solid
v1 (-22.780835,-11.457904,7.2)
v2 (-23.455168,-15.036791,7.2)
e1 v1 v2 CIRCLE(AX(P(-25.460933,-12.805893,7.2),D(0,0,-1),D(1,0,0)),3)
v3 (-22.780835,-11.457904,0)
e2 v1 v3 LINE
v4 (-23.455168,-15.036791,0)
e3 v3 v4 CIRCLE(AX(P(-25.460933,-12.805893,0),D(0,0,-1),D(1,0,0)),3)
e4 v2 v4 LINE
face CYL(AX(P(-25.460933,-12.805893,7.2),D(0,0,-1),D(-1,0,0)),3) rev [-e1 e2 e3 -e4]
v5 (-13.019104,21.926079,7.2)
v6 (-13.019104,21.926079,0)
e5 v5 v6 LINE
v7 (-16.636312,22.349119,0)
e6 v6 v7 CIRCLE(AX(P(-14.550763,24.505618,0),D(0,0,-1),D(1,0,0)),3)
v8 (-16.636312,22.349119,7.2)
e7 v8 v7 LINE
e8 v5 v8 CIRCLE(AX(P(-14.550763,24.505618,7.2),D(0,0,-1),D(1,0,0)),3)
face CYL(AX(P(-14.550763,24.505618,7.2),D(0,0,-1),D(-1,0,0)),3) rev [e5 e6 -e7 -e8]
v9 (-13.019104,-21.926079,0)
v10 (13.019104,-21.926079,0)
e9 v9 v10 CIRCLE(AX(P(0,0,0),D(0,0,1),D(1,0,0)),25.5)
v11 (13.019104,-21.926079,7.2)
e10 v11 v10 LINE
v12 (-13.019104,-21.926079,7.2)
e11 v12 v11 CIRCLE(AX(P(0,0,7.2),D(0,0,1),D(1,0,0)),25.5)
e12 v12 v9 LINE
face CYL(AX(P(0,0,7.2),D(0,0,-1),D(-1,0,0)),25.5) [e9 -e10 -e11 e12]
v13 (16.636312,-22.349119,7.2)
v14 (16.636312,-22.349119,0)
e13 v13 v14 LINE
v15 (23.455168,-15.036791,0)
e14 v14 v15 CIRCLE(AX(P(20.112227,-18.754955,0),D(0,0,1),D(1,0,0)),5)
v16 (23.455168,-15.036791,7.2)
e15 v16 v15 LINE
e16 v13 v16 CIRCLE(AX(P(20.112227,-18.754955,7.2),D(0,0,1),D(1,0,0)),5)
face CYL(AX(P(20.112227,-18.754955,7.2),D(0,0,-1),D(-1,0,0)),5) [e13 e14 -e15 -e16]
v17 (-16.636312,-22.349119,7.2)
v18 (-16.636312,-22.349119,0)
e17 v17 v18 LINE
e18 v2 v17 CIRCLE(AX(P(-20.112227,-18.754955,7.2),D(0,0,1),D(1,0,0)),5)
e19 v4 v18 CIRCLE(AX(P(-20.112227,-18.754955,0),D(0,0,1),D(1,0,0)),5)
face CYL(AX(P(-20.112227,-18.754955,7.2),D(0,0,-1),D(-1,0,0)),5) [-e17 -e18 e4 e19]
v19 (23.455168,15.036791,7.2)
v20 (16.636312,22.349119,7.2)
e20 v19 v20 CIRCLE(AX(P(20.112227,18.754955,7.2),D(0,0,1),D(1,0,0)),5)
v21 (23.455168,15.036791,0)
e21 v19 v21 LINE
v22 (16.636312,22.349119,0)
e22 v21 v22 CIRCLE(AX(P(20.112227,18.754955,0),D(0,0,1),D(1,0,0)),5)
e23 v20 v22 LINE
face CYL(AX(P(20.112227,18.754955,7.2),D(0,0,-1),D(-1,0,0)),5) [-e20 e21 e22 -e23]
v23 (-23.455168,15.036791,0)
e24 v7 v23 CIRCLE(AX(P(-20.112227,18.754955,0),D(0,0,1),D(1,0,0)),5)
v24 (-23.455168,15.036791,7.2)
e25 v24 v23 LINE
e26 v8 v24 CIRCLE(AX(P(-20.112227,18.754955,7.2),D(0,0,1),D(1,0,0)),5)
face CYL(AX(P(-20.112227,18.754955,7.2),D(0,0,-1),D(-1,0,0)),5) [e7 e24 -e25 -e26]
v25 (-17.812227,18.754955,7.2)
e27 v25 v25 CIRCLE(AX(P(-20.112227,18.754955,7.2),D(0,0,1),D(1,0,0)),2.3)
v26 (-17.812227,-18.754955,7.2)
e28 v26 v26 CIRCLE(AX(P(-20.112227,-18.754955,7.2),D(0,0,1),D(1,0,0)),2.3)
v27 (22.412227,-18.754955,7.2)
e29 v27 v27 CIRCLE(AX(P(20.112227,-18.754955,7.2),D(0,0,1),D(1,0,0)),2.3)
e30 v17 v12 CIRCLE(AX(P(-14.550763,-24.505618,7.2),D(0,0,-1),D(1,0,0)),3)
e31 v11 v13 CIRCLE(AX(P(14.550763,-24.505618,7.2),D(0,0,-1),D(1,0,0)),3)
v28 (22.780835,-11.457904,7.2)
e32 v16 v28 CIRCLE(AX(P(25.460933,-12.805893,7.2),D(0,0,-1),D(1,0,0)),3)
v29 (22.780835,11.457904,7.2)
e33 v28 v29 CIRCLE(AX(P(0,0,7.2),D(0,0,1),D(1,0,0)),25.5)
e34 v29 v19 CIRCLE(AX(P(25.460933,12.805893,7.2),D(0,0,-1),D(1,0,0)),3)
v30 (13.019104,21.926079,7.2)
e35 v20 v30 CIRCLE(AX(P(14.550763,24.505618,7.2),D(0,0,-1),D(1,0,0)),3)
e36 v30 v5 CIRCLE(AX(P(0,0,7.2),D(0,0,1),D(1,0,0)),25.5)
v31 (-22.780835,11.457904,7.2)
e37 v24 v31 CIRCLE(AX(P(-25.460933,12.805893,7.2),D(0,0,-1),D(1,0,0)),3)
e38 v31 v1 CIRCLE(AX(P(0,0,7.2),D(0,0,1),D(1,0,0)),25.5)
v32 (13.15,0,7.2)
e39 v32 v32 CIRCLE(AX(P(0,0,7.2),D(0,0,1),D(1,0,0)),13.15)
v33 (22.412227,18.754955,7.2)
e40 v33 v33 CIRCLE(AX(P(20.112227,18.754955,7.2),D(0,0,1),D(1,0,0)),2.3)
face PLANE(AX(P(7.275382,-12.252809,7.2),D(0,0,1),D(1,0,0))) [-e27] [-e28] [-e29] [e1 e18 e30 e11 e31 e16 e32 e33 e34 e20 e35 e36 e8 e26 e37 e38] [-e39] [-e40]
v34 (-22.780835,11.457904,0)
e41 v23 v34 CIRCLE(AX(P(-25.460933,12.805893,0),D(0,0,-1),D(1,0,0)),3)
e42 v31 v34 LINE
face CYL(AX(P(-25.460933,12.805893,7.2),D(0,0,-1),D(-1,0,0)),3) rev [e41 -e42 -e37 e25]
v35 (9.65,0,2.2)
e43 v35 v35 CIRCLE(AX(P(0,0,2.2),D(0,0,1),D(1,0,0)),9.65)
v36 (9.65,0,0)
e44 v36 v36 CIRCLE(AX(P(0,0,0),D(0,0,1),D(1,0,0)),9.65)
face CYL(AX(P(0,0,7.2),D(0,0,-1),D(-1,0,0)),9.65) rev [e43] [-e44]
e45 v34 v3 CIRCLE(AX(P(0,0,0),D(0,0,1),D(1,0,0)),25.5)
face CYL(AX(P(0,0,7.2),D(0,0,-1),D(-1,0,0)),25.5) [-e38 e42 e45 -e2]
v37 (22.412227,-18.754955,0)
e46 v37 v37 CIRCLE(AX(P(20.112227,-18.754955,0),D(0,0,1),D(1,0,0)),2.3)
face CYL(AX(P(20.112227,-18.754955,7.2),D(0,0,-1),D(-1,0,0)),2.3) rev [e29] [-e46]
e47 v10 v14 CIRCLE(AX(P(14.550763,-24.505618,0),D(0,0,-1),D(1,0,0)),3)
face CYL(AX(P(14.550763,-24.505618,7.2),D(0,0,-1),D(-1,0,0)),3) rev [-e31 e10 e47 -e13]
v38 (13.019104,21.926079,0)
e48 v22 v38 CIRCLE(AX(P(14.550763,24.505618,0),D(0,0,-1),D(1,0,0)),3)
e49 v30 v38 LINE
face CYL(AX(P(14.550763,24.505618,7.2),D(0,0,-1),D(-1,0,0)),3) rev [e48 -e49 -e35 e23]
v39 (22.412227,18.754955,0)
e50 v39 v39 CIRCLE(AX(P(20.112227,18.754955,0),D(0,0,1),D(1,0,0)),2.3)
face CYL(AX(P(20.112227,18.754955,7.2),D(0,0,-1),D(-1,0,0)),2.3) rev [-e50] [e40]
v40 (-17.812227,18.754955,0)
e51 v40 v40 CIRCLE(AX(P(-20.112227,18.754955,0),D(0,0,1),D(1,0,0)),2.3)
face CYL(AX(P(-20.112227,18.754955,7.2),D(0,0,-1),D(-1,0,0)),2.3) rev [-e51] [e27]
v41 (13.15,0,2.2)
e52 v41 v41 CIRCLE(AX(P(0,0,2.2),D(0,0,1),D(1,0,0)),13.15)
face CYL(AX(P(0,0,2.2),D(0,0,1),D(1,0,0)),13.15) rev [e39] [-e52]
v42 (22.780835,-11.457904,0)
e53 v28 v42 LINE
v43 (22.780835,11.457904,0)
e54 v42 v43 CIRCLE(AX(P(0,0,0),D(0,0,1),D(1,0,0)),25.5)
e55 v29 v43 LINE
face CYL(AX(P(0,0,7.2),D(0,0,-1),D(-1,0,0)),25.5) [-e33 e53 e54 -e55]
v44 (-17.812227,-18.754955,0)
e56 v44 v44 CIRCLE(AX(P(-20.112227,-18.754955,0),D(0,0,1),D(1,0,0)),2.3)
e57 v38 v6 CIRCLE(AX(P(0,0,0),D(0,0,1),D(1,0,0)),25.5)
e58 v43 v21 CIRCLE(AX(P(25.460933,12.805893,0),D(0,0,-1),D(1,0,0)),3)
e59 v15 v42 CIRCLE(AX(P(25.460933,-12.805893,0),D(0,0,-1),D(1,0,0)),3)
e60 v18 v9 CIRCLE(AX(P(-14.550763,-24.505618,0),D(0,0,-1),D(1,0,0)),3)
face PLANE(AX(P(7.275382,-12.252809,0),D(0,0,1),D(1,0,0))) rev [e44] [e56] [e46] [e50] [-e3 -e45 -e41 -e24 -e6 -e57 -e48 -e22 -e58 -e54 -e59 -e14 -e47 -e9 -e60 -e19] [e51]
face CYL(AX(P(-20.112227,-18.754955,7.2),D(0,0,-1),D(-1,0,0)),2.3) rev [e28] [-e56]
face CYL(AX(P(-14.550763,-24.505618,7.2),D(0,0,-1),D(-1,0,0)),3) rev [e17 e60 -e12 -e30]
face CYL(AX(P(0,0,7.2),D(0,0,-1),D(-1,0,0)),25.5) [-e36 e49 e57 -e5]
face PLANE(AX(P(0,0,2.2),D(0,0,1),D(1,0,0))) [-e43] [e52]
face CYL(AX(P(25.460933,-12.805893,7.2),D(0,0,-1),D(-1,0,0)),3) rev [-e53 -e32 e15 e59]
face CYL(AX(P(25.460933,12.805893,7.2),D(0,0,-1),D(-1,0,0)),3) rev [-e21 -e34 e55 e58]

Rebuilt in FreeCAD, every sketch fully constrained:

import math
import FreeCAD as App
import Part
import Sketcher
from FreeCAD import Vector

doc = App.newDocument("Part")
body = doc.addObject("PartDesign::Body", "Body")

sketch1 = body.newObject("Sketcher::SketchObject", "Sketch")
sketch1.AttachmentSupport = (doc.getObject("XY_Plane"), [""])
sketch1.MapMode = "FlatFace"
sketch1.addGeometry(Part.ArcOfCircle(Part.Circle(Vector(20.112227, -18.754955, 0), Vector(0, 0, 1), 5), math.radians(-134.041799), math.radians(48.041799)), False)
sketch1.addGeometry(Part.ArcOfCircle(Part.Circle(Vector(25.460933, -12.805893, 0), Vector(0, 0, 1), 3), math.radians(153.299322), math.radians(228.041799)), False)
sketch1.addGeometry(Part.ArcOfCircle(Part.Circle(Vector(0, 0, 0), Vector(0, 0, 1), 25.5), math.radians(-26.700678), math.radians(26.700678)), False)
sketch1.addGeometry(Part.ArcOfCircle(Part.Circle(Vector(25.460933, 12.805893, 0), Vector(0, 0, 1), 3), math.radians(131.958201), math.radians(206.700678)), False)
sketch1.addGeometry(Part.ArcOfCircle(Part.Circle(Vector(20.112227, 18.754955, 0), Vector(0, 0, 1), 5), math.radians(-48.041799), math.radians(134.041799)), False)
sketch1.addGeometry(Part.ArcOfCircle(Part.Circle(Vector(14.550763, 24.505618, 0), Vector(0, 0, 1), 3), math.radians(-120.700678), math.radians(-45.958201)), False)
sketch1.addGeometry(Part.ArcOfCircle(Part.Circle(Vector(0, 0, 0), Vector(0, 0, 1), 25.5), math.radians(59.299322), math.radians(120.700678)), False)
sketch1.addGeometry(Part.ArcOfCircle(Part.Circle(Vector(-14.550763, 24.505618, 0), Vector(0, 0, 1), 3), math.radians(-134.041799), math.radians(-59.299322)), False)
sketch1.addGeometry(Part.ArcOfCircle(Part.Circle(Vector(-20.112227, 18.754955, 0), Vector(0, 0, 1), 5), math.radians(45.958201), math.radians(228.041799)), False)
sketch1.addGeometry(Part.ArcOfCircle(Part.Circle(Vector(-25.460933, 12.805893, 0), Vector(0, 0, 1), 3), math.radians(-26.700678), math.radians(48.041799)), False)
sketch1.addGeometry(Part.ArcOfCircle(Part.Circle(Vector(0, 0, 0), Vector(0, 0, 1), 25.5), math.radians(153.299322), math.radians(206.700678)), False)
sketch1.addGeometry(Part.ArcOfCircle(Part.Circle(Vector(-25.460933, -12.805893, 0), Vector(0, 0, 1), 3), math.radians(-48.041799), math.radians(26.700678)), False)
sketch1.addGeometry(Part.ArcOfCircle(Part.Circle(Vector(-20.112227, -18.754955, 0), Vector(0, 0, 1), 5), math.radians(131.958201), math.radians(314.041799)), False)
sketch1.addGeometry(Part.ArcOfCircle(Part.Circle(Vector(-14.550763, -24.505618, 0), Vector(0, 0, 1), 3), math.radians(59.299322), math.radians(134.041799)), False)
sketch1.addGeometry(Part.ArcOfCircle(Part.Circle(Vector(0, 0, 0), Vector(0, 0, 1), 25.5), math.radians(-120.700678), math.radians(-59.299322)), False)
sketch1.addGeometry(Part.ArcOfCircle(Part.Circle(Vector(14.550763, -24.505618, 0), Vector(0, 0, 1), 3), math.radians(45.958201), math.radians(120.700678)), False)
sketch1.addGeometry(Part.Circle(Vector(-20.112227, -18.754955, 0), Vector(0, 0, 1), 2.3), False)
sketch1.addGeometry(Part.Circle(Vector(20.112227, -18.754955, 0), Vector(0, 0, 1), 2.3), False)
sketch1.addGeometry(Part.Circle(Vector(-20.112227, 18.754955, 0), Vector(0, 0, 1), 2.3), False)
sketch1.addGeometry(Part.Circle(Vector(0, 0, 0), Vector(0, 0, 1), 9.65), False)
sketch1.addGeometry(Part.Circle(Vector(20.112227, 18.754955, 0), Vector(0, 0, 1), 2.3), False)
sketch1.addConstraint(Sketcher.Constraint("Tangent", 0, 2, 1, 2))
sketch1.addConstraint(Sketcher.Constraint("Tangent", 1, 1, 2, 1))
sketch1.addConstraint(Sketcher.Constraint("Tangent", 2, 2, 3, 2))
sketch1.addConstraint(Sketcher.Constraint("Tangent", 3, 1, 4, 1))
sketch1.addConstraint(Sketcher.Constraint("Tangent", 4, 2, 5, 2))
sketch1.addConstraint(Sketcher.Constraint("Tangent", 5, 1, 6, 1))
sketch1.addConstraint(Sketcher.Constraint("Tangent", 6, 2, 7, 2))
sketch1.addConstraint(Sketcher.Constraint("Tangent", 7, 1, 8, 1))
sketch1.addConstraint(Sketcher.Constraint("Tangent", 8, 2, 9, 2))
sketch1.addConstraint(Sketcher.Constraint("Tangent", 9, 1, 10, 1))
sketch1.addConstraint(Sketcher.Constraint("Tangent", 10, 2, 11, 2))
sketch1.addConstraint(Sketcher.Constraint("Tangent", 11, 1, 12, 1))
sketch1.addConstraint(Sketcher.Constraint("Tangent", 12, 2, 13, 2))
sketch1.addConstraint(Sketcher.Constraint("Tangent", 13, 1, 14, 1))
sketch1.addConstraint(Sketcher.Constraint("Tangent", 14, 2, 15, 2))
sketch1.addConstraint(Sketcher.Constraint("Tangent", 15, 1, 0, 1))
sketch1.addConstraint(Sketcher.Constraint("Coincident", 2, 3, -1, 1))
sketch1.addConstraint(Sketcher.Constraint("Coincident", 6, 3, -1, 1))
sketch1.addConstraint(Sketcher.Constraint("Coincident", 10, 3, -1, 1))
sketch1.addConstraint(Sketcher.Constraint("Coincident", 14, 3, -1, 1))
sketch1.addConstraint(Sketcher.Constraint("Coincident", 19, 3, -1, 1))
sketch1.addConstraint(Sketcher.Constraint("Coincident", 16, 3, 12, 3))
sketch1.addConstraint(Sketcher.Constraint("Coincident", 17, 3, 0, 3))
sketch1.addConstraint(Sketcher.Constraint("Coincident", 18, 3, 8, 3))
sketch1.addConstraint(Sketcher.Constraint("Coincident", 20, 3, 4, 3))
sketch1.addConstraint(Sketcher.Constraint("Equal", 1, 3))
sketch1.addConstraint(Sketcher.Constraint("Equal", 0, 4))
sketch1.addConstraint(Sketcher.Constraint("Equal", 3, 5))
sketch1.addConstraint(Sketcher.Constraint("Equal", 2, 6))
sketch1.addConstraint(Sketcher.Constraint("Equal", 5, 7))
sketch1.addConstraint(Sketcher.Constraint("Equal", 4, 8))
sketch1.addConstraint(Sketcher.Constraint("Equal", 7, 9))
sketch1.addConstraint(Sketcher.Constraint("Equal", 6, 10))
sketch1.addConstraint(Sketcher.Constraint("Equal", 9, 11))
sketch1.addConstraint(Sketcher.Constraint("Equal", 8, 12))
sketch1.addConstraint(Sketcher.Constraint("Equal", 11, 13))
sketch1.addConstraint(Sketcher.Constraint("Equal", 10, 14))
sketch1.addConstraint(Sketcher.Constraint("Equal", 13, 15))
sketch1.addConstraint(Sketcher.Constraint("Equal", 16, 17))
sketch1.addConstraint(Sketcher.Constraint("Equal", 17, 18))
sketch1.addConstraint(Sketcher.Constraint("Equal", 18, 20))
sketch1.addConstraint(Sketcher.Constraint("Symmetric", 0, 3, 8, 3, -1, 1))
sketch1.addConstraint(Sketcher.Constraint("Symmetric", 4, 3, 12, 3, -1, 1))
sketch1.addConstraint(Sketcher.Constraint("Symmetric", 4, 3, 8, 3, -2))
sketch1.addConstraint(Sketcher.Constraint("Radius", 0, 5.0))
sketch1.addConstraint(Sketcher.Constraint("Radius", 1, 3.0))
sketch1.addConstraint(Sketcher.Constraint("Diameter", 16, 4.6))
sketch1.addConstraint(Sketcher.Constraint("Diameter", 19, 19.3))
sketch1.addConstraint(Sketcher.Constraint("Radius", 2, 25.5))
sketch1.addConstraint(Sketcher.Constraint("DistanceY", 0, 2, 1, 3, 2.230898))
sketch1.addConstraint(Sketcher.Constraint("DistanceX", 1, 1, 1, 3, 2.680098))
pad1 = body.newObject("PartDesign::Pad", "Pad")
pad1.Profile = sketch1
pad1.Length = 7.2

sketch2 = body.newObject("Sketcher::SketchObject", "Sketch001")
sketch2.AttachmentSupport = (doc.getObject("XY_Plane"), [""])
sketch2.MapMode = "FlatFace"
sketch2.AttachmentOffset = App.Placement(Vector(0, 0, 7.2), App.Rotation())
sketch2.addGeometry(Part.Circle(Vector(0, 0, 0), Vector(0, 0, 1), 13.15), False)
sketch2.addConstraint(Sketcher.Constraint("Coincident", 0, 3, -1, 1))
sketch2.addConstraint(Sketcher.Constraint("Diameter", 0, 26.3))
pocket1 = body.newObject("PartDesign::Pocket", "Pocket")
pocket1.Profile = sketch2
pocket1.Length = 5

doc.recompute()
